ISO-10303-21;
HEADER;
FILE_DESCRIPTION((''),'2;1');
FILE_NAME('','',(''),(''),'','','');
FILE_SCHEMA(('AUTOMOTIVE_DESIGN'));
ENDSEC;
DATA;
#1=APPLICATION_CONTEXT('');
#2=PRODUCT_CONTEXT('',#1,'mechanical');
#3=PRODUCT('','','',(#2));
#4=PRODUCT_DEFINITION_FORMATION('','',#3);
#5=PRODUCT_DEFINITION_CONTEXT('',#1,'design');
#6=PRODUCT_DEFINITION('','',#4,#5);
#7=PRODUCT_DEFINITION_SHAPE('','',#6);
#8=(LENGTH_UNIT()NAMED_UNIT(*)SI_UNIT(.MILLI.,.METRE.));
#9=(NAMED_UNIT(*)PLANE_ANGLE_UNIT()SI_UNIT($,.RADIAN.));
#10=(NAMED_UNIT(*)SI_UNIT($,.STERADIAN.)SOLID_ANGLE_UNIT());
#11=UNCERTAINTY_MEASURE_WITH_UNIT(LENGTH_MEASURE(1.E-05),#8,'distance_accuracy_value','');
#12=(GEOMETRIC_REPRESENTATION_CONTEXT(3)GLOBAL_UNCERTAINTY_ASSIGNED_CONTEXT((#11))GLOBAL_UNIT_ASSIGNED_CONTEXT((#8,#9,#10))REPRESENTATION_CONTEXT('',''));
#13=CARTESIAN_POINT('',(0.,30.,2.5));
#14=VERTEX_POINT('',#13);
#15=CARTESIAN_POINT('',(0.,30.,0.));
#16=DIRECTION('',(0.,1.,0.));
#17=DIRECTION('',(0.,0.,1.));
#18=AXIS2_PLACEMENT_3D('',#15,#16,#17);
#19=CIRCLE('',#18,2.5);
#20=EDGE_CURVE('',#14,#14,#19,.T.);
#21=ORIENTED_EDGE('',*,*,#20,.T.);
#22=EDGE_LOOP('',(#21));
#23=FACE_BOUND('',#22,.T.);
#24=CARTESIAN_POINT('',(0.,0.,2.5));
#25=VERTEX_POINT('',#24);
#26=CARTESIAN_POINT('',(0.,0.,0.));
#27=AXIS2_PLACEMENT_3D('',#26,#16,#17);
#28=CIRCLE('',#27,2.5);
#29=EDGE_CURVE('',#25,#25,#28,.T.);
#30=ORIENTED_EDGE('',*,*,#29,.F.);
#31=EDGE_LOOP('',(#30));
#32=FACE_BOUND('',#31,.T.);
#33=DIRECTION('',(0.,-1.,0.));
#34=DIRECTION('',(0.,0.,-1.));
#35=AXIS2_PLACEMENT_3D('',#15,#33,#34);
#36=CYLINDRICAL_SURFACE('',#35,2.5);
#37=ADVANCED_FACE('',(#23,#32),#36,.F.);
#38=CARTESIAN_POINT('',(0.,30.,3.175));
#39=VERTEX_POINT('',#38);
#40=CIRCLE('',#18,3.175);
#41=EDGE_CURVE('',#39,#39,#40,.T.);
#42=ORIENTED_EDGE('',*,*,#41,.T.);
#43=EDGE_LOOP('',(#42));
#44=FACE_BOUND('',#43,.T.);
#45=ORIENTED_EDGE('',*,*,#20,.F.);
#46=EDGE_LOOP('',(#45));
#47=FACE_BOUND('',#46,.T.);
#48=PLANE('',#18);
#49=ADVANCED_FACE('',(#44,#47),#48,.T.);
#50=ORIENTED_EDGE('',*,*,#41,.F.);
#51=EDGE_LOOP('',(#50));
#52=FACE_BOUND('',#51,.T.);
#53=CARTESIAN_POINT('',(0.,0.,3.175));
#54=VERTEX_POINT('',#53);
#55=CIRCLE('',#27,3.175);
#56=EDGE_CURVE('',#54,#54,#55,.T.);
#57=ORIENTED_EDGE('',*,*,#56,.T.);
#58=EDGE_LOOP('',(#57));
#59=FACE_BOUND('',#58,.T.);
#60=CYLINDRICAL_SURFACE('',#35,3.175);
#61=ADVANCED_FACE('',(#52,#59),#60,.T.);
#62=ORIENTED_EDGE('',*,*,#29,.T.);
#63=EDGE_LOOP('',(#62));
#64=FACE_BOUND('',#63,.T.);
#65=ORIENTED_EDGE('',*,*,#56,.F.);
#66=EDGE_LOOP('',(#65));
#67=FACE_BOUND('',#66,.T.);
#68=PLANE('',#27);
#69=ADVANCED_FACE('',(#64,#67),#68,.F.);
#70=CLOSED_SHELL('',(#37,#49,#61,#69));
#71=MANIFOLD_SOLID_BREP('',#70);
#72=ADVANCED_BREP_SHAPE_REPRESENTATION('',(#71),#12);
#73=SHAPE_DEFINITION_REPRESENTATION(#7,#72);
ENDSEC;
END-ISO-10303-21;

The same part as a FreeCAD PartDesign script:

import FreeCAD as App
import Part
import Sketcher
Q = App.Units.Quantity

doc = App.newDocument("Part")
body = doc.addObject("PartDesign::Body", "Body")

sketch1 = doc.addObject("Sketcher::SketchObject", "Sketch")
body.addObject(sketch1)
sketch1.AttachmentSupport = (doc.XZ_Plane, [""])
sketch1.MapMode = "FlatFace"
sketch1.addGeometry(Part.Circle(App.Vector(0, 0, 0), App.Vector(0, 0, 1), 3.175), False)
sketch1.addGeometry(Part.Circle(App.Vector(0, 0, 0), App.Vector(0, 0, 1), 2.5), False)
sketch1.addConstraint(Sketcher.Constraint("Coincident", 0, 3, -1, 1))
sketch1.addConstraint(Sketcher.Constraint("Coincident", 1, 3, -1, 1))
sketch1.addConstraint(Sketcher.Constraint("Diameter", 1, Q("5 mm")))
sketch1.addConstraint(Sketcher.Constraint("Diameter", 0, Q("6.35 mm")))
pad1 = doc.addObject("PartDesign::Pad", "Pad")
body.addObject(pad1)
pad1.Profile = sketch1
pad1.Length = 30
pad1.Reversed = True

doc.recompute()
